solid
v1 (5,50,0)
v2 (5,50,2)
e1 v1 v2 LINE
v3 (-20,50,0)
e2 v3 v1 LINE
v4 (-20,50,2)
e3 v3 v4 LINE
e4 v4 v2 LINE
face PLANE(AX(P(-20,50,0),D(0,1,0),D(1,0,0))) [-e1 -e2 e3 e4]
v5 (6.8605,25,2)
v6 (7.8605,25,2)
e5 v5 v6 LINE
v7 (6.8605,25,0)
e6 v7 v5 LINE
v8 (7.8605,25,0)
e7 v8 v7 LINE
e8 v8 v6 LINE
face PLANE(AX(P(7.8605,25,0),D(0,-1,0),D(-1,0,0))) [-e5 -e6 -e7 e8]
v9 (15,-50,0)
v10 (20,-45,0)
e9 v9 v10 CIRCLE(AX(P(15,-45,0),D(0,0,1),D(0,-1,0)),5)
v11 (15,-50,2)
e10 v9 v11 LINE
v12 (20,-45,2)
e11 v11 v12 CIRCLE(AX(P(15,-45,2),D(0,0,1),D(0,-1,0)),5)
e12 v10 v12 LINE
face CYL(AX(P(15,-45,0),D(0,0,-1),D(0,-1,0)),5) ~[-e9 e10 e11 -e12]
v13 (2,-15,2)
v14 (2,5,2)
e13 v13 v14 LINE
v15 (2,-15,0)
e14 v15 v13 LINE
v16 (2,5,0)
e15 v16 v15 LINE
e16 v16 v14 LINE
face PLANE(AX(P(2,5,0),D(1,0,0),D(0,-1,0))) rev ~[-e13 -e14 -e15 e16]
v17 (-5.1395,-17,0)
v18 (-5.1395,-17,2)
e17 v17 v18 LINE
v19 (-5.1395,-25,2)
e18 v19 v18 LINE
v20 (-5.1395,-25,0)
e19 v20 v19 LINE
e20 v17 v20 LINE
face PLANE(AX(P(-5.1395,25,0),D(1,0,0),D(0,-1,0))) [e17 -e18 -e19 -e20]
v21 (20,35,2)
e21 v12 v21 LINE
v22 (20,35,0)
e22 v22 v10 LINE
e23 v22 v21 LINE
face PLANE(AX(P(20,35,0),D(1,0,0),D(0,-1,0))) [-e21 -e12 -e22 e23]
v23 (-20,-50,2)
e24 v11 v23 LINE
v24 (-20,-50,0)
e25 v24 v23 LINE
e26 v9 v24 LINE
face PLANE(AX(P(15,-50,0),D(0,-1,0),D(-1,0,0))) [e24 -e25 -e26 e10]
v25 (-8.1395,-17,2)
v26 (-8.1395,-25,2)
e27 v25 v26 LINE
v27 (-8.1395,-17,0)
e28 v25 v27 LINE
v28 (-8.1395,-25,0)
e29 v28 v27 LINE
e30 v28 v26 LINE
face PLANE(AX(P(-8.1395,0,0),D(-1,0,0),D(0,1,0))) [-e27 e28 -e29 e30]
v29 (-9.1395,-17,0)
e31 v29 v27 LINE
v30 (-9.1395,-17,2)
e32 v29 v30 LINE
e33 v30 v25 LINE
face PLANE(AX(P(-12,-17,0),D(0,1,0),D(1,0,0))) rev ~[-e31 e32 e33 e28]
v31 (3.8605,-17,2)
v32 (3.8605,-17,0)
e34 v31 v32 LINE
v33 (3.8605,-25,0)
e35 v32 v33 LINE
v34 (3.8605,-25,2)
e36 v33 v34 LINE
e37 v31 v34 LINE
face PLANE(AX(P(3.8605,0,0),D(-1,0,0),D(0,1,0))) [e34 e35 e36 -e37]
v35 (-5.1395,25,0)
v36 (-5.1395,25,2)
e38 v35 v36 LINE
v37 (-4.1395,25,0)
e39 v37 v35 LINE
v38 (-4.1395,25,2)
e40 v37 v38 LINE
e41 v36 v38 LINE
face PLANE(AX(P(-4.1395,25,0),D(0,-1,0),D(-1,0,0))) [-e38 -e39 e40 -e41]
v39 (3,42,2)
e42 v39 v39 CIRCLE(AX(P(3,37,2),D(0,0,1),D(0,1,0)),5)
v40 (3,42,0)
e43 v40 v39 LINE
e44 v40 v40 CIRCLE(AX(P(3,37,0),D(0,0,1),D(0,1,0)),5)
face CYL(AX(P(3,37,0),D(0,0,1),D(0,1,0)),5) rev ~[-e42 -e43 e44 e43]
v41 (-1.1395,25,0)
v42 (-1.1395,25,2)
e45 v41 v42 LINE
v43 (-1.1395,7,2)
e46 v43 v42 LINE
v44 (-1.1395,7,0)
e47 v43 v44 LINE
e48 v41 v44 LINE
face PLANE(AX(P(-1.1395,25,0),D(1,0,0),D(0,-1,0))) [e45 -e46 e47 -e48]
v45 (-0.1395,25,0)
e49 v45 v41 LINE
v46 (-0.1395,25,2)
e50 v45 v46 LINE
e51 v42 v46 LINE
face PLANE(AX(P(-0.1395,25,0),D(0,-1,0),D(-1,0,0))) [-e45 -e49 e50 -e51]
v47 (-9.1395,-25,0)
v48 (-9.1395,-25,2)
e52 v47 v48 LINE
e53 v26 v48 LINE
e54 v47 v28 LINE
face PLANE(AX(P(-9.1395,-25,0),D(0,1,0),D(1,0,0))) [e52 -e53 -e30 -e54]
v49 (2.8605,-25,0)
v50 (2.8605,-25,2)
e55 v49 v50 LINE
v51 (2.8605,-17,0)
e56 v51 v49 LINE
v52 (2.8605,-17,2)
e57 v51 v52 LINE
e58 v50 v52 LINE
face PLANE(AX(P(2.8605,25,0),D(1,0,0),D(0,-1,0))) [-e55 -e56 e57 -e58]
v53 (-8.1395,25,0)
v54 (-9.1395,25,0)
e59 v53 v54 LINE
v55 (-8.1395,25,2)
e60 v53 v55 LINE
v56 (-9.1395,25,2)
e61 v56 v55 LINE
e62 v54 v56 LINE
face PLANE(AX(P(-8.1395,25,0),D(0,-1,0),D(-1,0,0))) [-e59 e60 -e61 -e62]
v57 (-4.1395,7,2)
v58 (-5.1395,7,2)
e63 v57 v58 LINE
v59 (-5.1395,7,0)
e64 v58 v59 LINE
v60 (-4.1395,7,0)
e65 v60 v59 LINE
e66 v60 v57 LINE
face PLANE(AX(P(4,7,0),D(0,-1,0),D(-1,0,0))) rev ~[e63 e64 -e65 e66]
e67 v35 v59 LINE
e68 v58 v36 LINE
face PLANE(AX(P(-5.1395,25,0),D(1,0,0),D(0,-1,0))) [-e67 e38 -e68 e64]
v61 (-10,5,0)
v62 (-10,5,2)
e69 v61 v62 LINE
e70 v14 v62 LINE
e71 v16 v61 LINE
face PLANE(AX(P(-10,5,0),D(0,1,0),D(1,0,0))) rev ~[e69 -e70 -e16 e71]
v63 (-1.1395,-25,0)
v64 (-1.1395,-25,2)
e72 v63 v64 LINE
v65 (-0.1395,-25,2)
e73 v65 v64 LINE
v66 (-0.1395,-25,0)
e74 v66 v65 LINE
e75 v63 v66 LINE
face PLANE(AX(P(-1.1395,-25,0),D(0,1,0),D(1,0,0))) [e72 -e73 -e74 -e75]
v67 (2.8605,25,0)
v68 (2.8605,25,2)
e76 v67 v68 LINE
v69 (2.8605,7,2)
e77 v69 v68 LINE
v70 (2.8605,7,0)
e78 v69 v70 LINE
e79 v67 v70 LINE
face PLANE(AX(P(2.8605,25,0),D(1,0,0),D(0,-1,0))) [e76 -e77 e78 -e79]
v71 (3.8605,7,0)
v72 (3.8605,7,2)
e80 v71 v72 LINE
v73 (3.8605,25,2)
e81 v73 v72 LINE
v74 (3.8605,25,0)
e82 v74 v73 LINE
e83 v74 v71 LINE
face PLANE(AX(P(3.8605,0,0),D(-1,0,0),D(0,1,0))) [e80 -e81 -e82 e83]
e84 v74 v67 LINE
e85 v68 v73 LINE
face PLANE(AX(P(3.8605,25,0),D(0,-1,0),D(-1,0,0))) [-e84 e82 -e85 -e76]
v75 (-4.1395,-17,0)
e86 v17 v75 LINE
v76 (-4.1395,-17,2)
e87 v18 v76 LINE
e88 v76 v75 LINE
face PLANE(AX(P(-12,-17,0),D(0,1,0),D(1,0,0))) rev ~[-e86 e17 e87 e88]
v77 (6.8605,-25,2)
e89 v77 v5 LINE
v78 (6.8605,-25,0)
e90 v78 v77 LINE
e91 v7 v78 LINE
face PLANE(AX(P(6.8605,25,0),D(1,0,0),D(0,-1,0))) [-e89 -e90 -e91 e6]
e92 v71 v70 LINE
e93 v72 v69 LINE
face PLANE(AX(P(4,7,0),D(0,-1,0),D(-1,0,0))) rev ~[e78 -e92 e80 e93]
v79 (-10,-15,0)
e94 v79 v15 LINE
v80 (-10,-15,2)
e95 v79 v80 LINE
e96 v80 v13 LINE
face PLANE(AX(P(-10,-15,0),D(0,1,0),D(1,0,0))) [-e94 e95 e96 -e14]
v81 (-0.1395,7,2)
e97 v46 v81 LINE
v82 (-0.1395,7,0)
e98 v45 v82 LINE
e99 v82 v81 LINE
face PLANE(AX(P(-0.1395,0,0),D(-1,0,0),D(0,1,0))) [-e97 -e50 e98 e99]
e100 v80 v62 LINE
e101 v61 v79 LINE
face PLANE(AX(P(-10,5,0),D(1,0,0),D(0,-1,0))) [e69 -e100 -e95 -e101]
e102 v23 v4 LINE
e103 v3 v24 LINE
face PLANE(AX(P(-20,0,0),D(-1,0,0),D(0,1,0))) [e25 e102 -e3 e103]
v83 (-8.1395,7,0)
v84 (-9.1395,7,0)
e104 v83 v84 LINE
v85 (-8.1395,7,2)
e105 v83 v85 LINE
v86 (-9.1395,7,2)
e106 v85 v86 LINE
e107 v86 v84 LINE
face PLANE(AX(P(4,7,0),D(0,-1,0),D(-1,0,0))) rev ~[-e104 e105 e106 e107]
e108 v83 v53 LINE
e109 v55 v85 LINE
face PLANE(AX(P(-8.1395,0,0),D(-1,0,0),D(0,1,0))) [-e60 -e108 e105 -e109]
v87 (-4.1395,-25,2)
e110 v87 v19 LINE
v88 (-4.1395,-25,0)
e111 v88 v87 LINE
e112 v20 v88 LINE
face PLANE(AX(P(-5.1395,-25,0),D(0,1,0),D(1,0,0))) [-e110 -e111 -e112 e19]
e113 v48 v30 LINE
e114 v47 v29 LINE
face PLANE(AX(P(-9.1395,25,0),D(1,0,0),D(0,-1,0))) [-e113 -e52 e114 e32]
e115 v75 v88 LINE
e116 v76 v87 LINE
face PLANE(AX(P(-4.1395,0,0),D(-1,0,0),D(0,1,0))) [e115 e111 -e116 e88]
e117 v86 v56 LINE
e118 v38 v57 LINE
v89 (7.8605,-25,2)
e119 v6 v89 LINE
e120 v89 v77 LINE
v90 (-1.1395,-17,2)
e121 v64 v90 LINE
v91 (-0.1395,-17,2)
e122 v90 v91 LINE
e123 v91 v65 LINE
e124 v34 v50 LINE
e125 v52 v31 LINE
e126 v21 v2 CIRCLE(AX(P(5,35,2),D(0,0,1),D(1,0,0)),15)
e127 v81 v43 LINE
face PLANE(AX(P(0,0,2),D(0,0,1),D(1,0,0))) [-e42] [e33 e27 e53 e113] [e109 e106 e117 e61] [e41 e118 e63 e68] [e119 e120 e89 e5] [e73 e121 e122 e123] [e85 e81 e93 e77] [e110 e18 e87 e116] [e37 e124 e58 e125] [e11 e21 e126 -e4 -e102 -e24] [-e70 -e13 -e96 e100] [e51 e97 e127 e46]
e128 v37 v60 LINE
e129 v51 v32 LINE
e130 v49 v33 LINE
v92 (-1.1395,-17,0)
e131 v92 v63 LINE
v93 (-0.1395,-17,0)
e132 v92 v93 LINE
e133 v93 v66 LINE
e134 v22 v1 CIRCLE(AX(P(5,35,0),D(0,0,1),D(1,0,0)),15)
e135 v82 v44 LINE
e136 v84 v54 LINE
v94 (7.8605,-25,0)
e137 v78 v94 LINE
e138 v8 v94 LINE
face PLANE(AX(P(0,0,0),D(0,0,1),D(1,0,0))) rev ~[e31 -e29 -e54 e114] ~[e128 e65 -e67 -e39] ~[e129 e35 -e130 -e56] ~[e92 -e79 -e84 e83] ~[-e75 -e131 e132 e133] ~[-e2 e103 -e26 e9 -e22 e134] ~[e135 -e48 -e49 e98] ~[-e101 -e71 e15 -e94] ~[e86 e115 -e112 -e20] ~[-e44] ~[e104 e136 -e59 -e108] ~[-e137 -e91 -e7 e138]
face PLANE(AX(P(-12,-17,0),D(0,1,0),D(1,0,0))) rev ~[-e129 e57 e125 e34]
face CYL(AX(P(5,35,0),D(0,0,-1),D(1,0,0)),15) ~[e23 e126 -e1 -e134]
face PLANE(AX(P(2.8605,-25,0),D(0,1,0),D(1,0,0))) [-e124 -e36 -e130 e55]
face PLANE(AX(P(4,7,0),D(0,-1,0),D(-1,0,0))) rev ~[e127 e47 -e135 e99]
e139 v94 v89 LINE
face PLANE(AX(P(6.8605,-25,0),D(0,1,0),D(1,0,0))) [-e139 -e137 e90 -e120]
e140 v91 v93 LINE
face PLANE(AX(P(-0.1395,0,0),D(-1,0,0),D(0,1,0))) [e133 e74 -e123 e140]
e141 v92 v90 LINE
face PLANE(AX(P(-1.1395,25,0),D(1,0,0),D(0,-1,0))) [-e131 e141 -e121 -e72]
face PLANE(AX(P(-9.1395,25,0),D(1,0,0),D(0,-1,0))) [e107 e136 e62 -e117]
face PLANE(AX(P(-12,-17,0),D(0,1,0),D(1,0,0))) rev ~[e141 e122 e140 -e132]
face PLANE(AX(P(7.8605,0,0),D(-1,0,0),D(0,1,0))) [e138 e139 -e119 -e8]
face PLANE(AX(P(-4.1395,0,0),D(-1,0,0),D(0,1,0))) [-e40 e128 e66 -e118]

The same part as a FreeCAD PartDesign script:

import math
import FreeCAD as App
import Part
import Sketcher

V = App.Vector


def add_polygon(sketch, points):
    """Adds a closed chain of lines whose ends are joined by coincident constraints."""
    first, n = sketch.GeometryCount, len(points)
    for a, b in zip(points, points[1:] + points[:1]):
        sketch.addGeometry(Part.LineSegment(App.Vector(*a, 0), App.Vector(*b, 0)), False)
    for i in range(n):
        sketch.addConstraint(Sketcher.Constraint("Coincident", first + i, 2, first + (i + 1) % n, 1))

doc = App.newDocument("Part")
body = doc.addObject("PartDesign::Body", "Body")

# Sketch on XY plane
sketch1 = doc.addObject("Sketcher::SketchObject", "Sketch")
body.addObject(sketch1)
sketch1.AttachmentSupport = (doc.XY_Plane, [""])
sketch1.MapMode = "FlatFace"
sketch1.addGeometry(Part.LineSegment(V(5, 50, 0), V(-20, 50, 0)), False)
sketch1.addGeometry(Part.LineSegment(V(-20, 50, 0), V(-20, -50, 0)), False)
sketch1.addGeometry(Part.LineSegment(V(-20, -50, 0), V(15, -50, 0)), False)
sketch1.addGeometry(Part.ArcOfCircle(Part.Circle(V(15, -45, 0), V(0, 0, 1), 5), math.radians(-90), math.radians(0)), False)
sketch1.addGeometry(Part.LineSegment(V(20, -45, 0), V(20, 35, 0)), False)
sketch1.addGeometry(Part.ArcOfCircle(Part.Circle(V(5, 35, 0), V(0, 0, 1), 15), math.radians(0), math.radians(90)), False)
sketch1.addConstraint(Sketcher.Constraint("Coincident", 0, 2, 1, 1))
sketch1.addConstraint(Sketcher.Constraint("Coincident", 1, 2, 2, 1))
sketch1.addConstraint(Sketcher.Constraint("Tangent", 2, 2, 3, 1))
sketch1.addConstraint(Sketcher.Constraint("Tangent", 3, 2, 4, 1))
sketch1.addConstraint(Sketcher.Constraint("Tangent", 4, 2, 5, 1))
sketch1.addConstraint(Sketcher.Constraint("Tangent", 5, 2, 0, 1))
sketch1.addConstraint(Sketcher.Constraint("Horizontal", 0))
sketch1.addConstraint(Sketcher.Constraint("Vertical", 1))
sketch1.addConstraint(Sketcher.Constraint("Horizontal", 2))
sketch1.addConstraint(Sketcher.Constraint("Vertical", 4))
sketch1.addConstraint(Sketcher.Constraint("Radius", 3, 5.0))
sketch1.addConstraint(Sketcher.Constraint("Radius", 5, 15.0))
sketch1.addConstraint(Sketcher.Constraint("DistanceY", 1, 2, 1, 1, 100.0))
sketch1.addConstraint(Sketcher.Constraint("DistanceX", 1, 2, 3, 2, 40.0))
sketch1.addConstraint(Sketcher.Constraint("DistanceX", -1, 1, 3, 3, 15.0))
sketch1.addConstraint(Sketcher.Constraint("DistanceY", 3, 3, -1, 1, 45.0))
pad1 = doc.addObject("PartDesign::Pad", "Pad")
body.addObject(pad1)
pad1.Profile = sketch1
pad1.Length = 2

# Sketch on XY plane
sketch2 = doc.addObject("Sketcher::SketchObject", "Sketch001")
body.addObject(sketch2)
sketch2.AttachmentSupport = (doc.XY_Plane, [""])
sketch2.MapMode = "FlatFace"
sketch2.addGeometry(Part.Circle(V(3, 37, 0), V(0, 0, 1), 5), False)
sketch2.addConstraint(Sketcher.Constraint("Diameter", 0, 10.0))
sketch2.addConstraint(Sketcher.Constraint("DistanceX", -1, 1, 0, 3, 3.0))
sketch2.addConstraint(Sketcher.Constraint("DistanceY", -1, 1, 0, 3, 37.0))
doc.recompute()
hole = doc.addObject("PartDesign::Hole", "Hole")
body.addObject(hole)
hole.Profile = sketch2
hole.ThreadType = "None"
hole.Diameter = 10
hole.DepthType = "ThroughAll"
hole.Reversed = True

# Sketch on XY plane
sketch3 = doc.addObject("Sketcher::SketchObject", "Sketch002")
body.addObject(sketch3)
sketch3.AttachmentSupport = (doc.XY_Plane, [""])
sketch3.MapMode = "FlatFace"
add_polygon(sketch3, [(-8.1, 25), (-9.1, 25), (-9.1, -25), (-8.1, -25)])  # lines 0-3
add_polygon(sketch3, [(6.9, 25), (6.9, -25), (7.9, -25), (7.9, 25)])  # lines 4-7
add_polygon(sketch3, [(2.9, 25), (2.9, -25), (3.9, -25), (3.9, 25)])  # lines 8-11
add_polygon(sketch3, [(-1.1, 25), (-1.1, -25), (-0.1, -25), (-0.1, 25)])  # lines 12-15
add_polygon(sketch3, [(-5.1, 25), (-5.1, -25), (-4.1, -25), (-4.1, 25)])  # lines 16-19
sketch3.addConstraint(Sketcher.Constraint("Horizontal", 0))
sketch3.addConstraint(Sketcher.Constraint("Vertical", 1))
sketch3.addConstraint(Sketcher.Constraint("Horizontal", 2))
sketch3.addConstraint(Sketcher.Constraint("Vertical", 3))
sketch3.addConstraint(Sketcher.Constraint("Vertical", 4))
sketch3.addConstraint(Sketcher.Constraint("Horizontal", 5))
sketch3.addConstraint(Sketcher.Constraint("Vertical", 6))
sketch3.addConstraint(Sketcher.Constraint("Horizontal", 7))
sketch3.addConstraint(Sketcher.Constraint("Vertical", 8))
sketch3.addConstraint(Sketcher.Constraint("Horizontal", 9))
sketch3.addConstraint(Sketcher.Constraint("Vertical", 10))
sketch3.addConstraint(Sketcher.Constraint("Horizontal", 11))
sketch3.addConstraint(Sketcher.Constraint("Vertical", 12))
sketch3.addConstraint(Sketcher.Constraint("Horizontal", 13))
sketch3.addConstraint(Sketcher.Constraint("Vertical", 14))
sketch3.addConstraint(Sketcher.Constraint("Horizontal", 15))
sketch3.addConstraint(Sketcher.Constraint("Vertical", 16))
sketch3.addConstraint(Sketcher.Constraint("Horizontal", 17))
sketch3.addConstraint(Sketcher.Constraint("Vertical", 18))
sketch3.addConstraint(Sketcher.Constraint("Horizontal", 19))
sketch3.addConstraint(Sketcher.Constraint("Horizontal", 2, 2, 4, 2))
sketch3.addConstraint(Sketcher.Constraint("Horizontal", 3, 2, 6, 2))
sketch3.addConstraint(Sketcher.Constraint("Horizontal", 5, 2, 8, 2))
sketch3.addConstraint(Sketcher.Constraint("Horizontal", 7, 2, 10, 2))
sketch3.addConstraint(Sketcher.Constraint("Horizontal", 9, 2, 12, 2))
sketch3.addConstraint(Sketcher.Constraint("Horizontal", 11, 2, 14, 2))
sketch3.addConstraint(Sketcher.Constraint("Horizontal", 13, 2, 16, 2))
sketch3.addConstraint(Sketcher.Constraint("Horizontal", 15, 2, 18, 2))
sketch3.addConstraint(Sketcher.Constraint("Equal", 2, 5))
sketch3.addConstraint(Sketcher.Constraint("Equal", 7, 9))
sketch3.addConstraint(Sketcher.Constraint("Equal", 11, 13))
sketch3.addConstraint(Sketcher.Constraint("Equal", 15, 17))
sketch3.addConstraint(Sketcher.Constraint("DistanceX", 0, 2, 0, 1, 1.0))
sketch3.addConstraint(Sketcher.Constraint("DistanceY", 1, 2, 1, 1, 50.0))
sketch3.addConstraint(Sketcher.Constraint("DistanceX", 9, 2, 4, 2, 3.0))
sketch3.addConstraint(Sketcher.Constraint("DistanceX", 13, 2, 8, 2, 3.0))
sketch3.addConstraint(Sketcher.Constraint("DistanceX", 2, 2, 16, 2, 3.0))
sketch3.addConstraint(Sketcher.Constraint("DistanceX", 17, 2, 12, 2, 3.0))
sketch3.addConstraint(Sketcher.Constraint("DistanceY", -1, 1, 0, 2, 25.0))
sketch3.addConstraint(Sketcher.Constraint("DistanceX", 0, 2, -1, 1, 9.1395))
pocket1 = doc.addObject("PartDesign::Pocket", "Pocket")
body.addObject(pocket1)
pocket1.Profile = sketch3
pocket1.Length = 10
pocket1.Reversed = True

# Sketch on XY plane
sketch4 = doc.addObject("Sketcher::SketchObject", "Sketch003")
body.addObject(sketch4)
sketch4.AttachmentSupport = (doc.XY_Plane, [""])
sketch4.MapMode = "FlatFace"
add_polygon(sketch4, [(2, -15), (2, 5), (-10, 5), (-10, -15)])  # lines 0-3
sketch4.addConstraint(Sketcher.Constraint("Vertical", 0))
sketch4.addConstraint(Sketcher.Constraint("Horizontal", 1))
sketch4.addConstraint(Sketcher.Constraint("Vertical", 2))
sketch4.addConstraint(Sketcher.Constraint("Horizontal", 3))
sketch4.addConstraint(Sketcher.Constraint("DistanceX", 1, 2, 1, 1, 12.0))
sketch4.addConstraint(Sketcher.Constraint("DistanceY", 0, 1, 0, 2, 20.0))
sketch4.addConstraint(Sketcher.Constraint("DistanceX", 1, 2, -1, 1, 10.0))
sketch4.addConstraint(Sketcher.Constraint("DistanceY", -1, 1, 0, 2, 5.0))
pocket2 = doc.addObject("PartDesign::Pocket", "Pocket001")
body.addObject(pocket2)
pocket2.Profile = sketch4
pocket2.Length = 10
pocket2.Reversed = True

# Sketch on XY plane
sketch5 = doc.addObject("Sketcher::SketchObject", "Sketch004")
body.addObject(sketch5)
sketch5.AttachmentSupport = (doc.XY_Plane, [""])
sketch5.MapMode = "FlatFace"
add_polygon(sketch5, [(-12, 7), (-12, -17), (4, -17), (4, 7)])  # lines 0-3
add_polygon(sketch5, [(2, -15), (-10, -15), (-10, 5), (2, 5)])  # lines 4-7
sketch5.addConstraint(Sketcher.Constraint("Vertical", 0))
sketch5.addConstraint(Sketcher.Constraint("Horizontal", 1))
sketch5.addConstraint(Sketcher.Constraint("Vertical", 2))
sketch5.addConstraint(Sketcher.Constraint("Horizontal", 3))
sketch5.addConstraint(Sketcher.Constraint("Horizontal", 4))
sketch5.addConstraint(Sketcher.Constraint("Vertical", 5))
sketch5.addConstraint(Sketcher.Constraint("Horizontal", 6))
sketch5.addConstraint(Sketcher.Constraint("Vertical", 7))
sketch5.addConstraint(Sketcher.Constraint("DistanceX", -1, 1, 6, 2, 2.0))
sketch5.addConstraint(Sketcher.Constraint("DistanceX", 0, 2, 4, 2, 2.0))
sketch5.addConstraint(Sketcher.Constraint("DistanceY", 0, 2, 4, 2, 2.0))
sketch5.addConstraint(Sketcher.Constraint("DistanceY", 5, 2, 3, 2, 2.0))
sketch5.addConstraint(Sketcher.Constraint("DistanceX", 6, 2, 2, 2, 2.0))
sketch5.addConstraint(Sketcher.Constraint("DistanceX", 1, 1, 1, 2, 16.0))
sketch5.addConstraint(Sketcher.Constraint("DistanceY", 0, 2, 0, 1, 24.0))
sketch5.addConstraint(Sketcher.Constraint("DistanceY", 0, 2, -1, 1, 17.0))
pad2 = doc.addObject("PartDesign::Pad", "Pad001")
body.addObject(pad2)
pad2.Profile = sketch5
pad2.Length = 2

doc.recompute()
